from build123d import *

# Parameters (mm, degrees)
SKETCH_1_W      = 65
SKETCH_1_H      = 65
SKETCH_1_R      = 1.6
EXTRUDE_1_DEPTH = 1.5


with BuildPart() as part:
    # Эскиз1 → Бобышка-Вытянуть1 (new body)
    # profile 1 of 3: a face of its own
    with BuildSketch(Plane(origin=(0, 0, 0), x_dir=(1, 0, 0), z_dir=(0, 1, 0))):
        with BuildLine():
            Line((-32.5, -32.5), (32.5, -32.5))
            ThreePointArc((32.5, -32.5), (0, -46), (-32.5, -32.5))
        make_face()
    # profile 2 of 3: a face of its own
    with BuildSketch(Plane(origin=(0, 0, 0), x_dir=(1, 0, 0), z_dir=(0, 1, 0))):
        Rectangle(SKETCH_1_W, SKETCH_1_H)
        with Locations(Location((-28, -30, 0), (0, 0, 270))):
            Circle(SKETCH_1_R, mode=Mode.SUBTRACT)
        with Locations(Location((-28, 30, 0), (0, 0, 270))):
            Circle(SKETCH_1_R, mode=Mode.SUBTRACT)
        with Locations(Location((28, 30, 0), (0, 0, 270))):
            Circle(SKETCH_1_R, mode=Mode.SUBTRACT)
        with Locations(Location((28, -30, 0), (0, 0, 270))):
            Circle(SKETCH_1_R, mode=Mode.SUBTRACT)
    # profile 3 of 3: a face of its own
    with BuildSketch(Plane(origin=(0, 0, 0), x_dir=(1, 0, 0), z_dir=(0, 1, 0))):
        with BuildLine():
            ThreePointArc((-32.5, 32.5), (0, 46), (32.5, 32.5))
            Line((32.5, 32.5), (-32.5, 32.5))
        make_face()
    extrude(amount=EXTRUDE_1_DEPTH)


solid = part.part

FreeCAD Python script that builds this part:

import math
import FreeCAD as App
import Part
import Sketcher
from FreeCAD import Vector

doc = App.newDocument("Part")
body = doc.addObject("PartDesign::Body", "Body")

# Sketch on XZ plane
sketch1 = body.newObject("Sketcher::SketchObject", "Sketch")
sketch1.AttachmentSupport = (doc.getObject("XZ_Plane"), [""])
sketch1.MapMode = "FlatFace"
sketch1.addGeometry([
    Part.ArcOfCircle(Part.Circle(Vector(0, 0.1, 0), Vector(0, 0, 1), 45.9), math.radians(45), math.radians(135)),  # 0
    Part.LineSegment(Vector(32.5, 32.5, 0), Vector(32.5, -32.5, 0)),  # 1
    Part.ArcOfCircle(Part.Circle(Vector(0, -0.1, 0), Vector(0, 0, 1), 45.9), math.radians(-135), math.radians(-45)),  # 2
    Part.LineSegment(Vector(-32.5, -32.5, 0), Vector(-32.5, 32.5, 0)),  # 3
    Part.Circle(Vector(28, -30, 0), Vector(0, 0, 1), 1.6),  # 4
    Part.Circle(Vector(-28, 30, 0), Vector(0, 0, 1), 1.6),  # 5
    Part.Circle(Vector(28, 30, 0), Vector(0, 0, 1), 1.6),  # 6
    Part.Circle(Vector(-28, -30, 0), Vector(0, 0, 1), 1.6),  # 7
], False)
sketch1.addConstraint([
    Sketcher.Constraint("Coincident", 0, 1, 1, 1),
    Sketcher.Constraint("Coincident", 1, 2, 2, 2),
    Sketcher.Constraint("Coincident", 2, 1, 3, 1),
    Sketcher.Constraint("Coincident", 3, 2, 0, 2),
    Sketcher.Constraint("Vertical", 1),
    Sketcher.Constraint("Vertical", 3),
    Sketcher.Constraint("Equal", 0, 2),
    Sketcher.Constraint("Equal", 4, 5),
    Sketcher.Constraint("Equal", 5, 6),
    Sketcher.Constraint("Equal", 6, 7),
    Sketcher.Constraint("Symmetric", 0, 3, 2, 3, -1, 1),
    Sketcher.Constraint("Symmetric", 4, 3, 5, 3, -1, 1),
    Sketcher.Constraint("Symmetric", 6, 3, 7, 3, -1, 1),
    Sketcher.Constraint("Symmetric", 5, 3, 6, 3, -2),
    Sketcher.Constraint("Symmetric", 1, 2, 2, 1, -2),
    Sketcher.Constraint("Diameter", 4, 3.2),
    Sketcher.Constraint("DistanceY", 1, 2, 1, 1, 65.0),
    Sketcher.Constraint("DistanceX", -1, 1, 4, 3, 28.0),
    Sketcher.Constraint("DistanceY", 4, 3, -1, 1, 30.0),
    Sketcher.Constraint("DistanceX", -1, 1, 0, 1, 32.5),
    Sketcher.Constraint("Radius", 0, 45.87037),
])
pad1 = body.newObject("PartDesign::Pad", "Pad")
pad1.Profile = sketch1
pad1.Length = 1.5
pad1.Reversed = True

doc.recompute()
